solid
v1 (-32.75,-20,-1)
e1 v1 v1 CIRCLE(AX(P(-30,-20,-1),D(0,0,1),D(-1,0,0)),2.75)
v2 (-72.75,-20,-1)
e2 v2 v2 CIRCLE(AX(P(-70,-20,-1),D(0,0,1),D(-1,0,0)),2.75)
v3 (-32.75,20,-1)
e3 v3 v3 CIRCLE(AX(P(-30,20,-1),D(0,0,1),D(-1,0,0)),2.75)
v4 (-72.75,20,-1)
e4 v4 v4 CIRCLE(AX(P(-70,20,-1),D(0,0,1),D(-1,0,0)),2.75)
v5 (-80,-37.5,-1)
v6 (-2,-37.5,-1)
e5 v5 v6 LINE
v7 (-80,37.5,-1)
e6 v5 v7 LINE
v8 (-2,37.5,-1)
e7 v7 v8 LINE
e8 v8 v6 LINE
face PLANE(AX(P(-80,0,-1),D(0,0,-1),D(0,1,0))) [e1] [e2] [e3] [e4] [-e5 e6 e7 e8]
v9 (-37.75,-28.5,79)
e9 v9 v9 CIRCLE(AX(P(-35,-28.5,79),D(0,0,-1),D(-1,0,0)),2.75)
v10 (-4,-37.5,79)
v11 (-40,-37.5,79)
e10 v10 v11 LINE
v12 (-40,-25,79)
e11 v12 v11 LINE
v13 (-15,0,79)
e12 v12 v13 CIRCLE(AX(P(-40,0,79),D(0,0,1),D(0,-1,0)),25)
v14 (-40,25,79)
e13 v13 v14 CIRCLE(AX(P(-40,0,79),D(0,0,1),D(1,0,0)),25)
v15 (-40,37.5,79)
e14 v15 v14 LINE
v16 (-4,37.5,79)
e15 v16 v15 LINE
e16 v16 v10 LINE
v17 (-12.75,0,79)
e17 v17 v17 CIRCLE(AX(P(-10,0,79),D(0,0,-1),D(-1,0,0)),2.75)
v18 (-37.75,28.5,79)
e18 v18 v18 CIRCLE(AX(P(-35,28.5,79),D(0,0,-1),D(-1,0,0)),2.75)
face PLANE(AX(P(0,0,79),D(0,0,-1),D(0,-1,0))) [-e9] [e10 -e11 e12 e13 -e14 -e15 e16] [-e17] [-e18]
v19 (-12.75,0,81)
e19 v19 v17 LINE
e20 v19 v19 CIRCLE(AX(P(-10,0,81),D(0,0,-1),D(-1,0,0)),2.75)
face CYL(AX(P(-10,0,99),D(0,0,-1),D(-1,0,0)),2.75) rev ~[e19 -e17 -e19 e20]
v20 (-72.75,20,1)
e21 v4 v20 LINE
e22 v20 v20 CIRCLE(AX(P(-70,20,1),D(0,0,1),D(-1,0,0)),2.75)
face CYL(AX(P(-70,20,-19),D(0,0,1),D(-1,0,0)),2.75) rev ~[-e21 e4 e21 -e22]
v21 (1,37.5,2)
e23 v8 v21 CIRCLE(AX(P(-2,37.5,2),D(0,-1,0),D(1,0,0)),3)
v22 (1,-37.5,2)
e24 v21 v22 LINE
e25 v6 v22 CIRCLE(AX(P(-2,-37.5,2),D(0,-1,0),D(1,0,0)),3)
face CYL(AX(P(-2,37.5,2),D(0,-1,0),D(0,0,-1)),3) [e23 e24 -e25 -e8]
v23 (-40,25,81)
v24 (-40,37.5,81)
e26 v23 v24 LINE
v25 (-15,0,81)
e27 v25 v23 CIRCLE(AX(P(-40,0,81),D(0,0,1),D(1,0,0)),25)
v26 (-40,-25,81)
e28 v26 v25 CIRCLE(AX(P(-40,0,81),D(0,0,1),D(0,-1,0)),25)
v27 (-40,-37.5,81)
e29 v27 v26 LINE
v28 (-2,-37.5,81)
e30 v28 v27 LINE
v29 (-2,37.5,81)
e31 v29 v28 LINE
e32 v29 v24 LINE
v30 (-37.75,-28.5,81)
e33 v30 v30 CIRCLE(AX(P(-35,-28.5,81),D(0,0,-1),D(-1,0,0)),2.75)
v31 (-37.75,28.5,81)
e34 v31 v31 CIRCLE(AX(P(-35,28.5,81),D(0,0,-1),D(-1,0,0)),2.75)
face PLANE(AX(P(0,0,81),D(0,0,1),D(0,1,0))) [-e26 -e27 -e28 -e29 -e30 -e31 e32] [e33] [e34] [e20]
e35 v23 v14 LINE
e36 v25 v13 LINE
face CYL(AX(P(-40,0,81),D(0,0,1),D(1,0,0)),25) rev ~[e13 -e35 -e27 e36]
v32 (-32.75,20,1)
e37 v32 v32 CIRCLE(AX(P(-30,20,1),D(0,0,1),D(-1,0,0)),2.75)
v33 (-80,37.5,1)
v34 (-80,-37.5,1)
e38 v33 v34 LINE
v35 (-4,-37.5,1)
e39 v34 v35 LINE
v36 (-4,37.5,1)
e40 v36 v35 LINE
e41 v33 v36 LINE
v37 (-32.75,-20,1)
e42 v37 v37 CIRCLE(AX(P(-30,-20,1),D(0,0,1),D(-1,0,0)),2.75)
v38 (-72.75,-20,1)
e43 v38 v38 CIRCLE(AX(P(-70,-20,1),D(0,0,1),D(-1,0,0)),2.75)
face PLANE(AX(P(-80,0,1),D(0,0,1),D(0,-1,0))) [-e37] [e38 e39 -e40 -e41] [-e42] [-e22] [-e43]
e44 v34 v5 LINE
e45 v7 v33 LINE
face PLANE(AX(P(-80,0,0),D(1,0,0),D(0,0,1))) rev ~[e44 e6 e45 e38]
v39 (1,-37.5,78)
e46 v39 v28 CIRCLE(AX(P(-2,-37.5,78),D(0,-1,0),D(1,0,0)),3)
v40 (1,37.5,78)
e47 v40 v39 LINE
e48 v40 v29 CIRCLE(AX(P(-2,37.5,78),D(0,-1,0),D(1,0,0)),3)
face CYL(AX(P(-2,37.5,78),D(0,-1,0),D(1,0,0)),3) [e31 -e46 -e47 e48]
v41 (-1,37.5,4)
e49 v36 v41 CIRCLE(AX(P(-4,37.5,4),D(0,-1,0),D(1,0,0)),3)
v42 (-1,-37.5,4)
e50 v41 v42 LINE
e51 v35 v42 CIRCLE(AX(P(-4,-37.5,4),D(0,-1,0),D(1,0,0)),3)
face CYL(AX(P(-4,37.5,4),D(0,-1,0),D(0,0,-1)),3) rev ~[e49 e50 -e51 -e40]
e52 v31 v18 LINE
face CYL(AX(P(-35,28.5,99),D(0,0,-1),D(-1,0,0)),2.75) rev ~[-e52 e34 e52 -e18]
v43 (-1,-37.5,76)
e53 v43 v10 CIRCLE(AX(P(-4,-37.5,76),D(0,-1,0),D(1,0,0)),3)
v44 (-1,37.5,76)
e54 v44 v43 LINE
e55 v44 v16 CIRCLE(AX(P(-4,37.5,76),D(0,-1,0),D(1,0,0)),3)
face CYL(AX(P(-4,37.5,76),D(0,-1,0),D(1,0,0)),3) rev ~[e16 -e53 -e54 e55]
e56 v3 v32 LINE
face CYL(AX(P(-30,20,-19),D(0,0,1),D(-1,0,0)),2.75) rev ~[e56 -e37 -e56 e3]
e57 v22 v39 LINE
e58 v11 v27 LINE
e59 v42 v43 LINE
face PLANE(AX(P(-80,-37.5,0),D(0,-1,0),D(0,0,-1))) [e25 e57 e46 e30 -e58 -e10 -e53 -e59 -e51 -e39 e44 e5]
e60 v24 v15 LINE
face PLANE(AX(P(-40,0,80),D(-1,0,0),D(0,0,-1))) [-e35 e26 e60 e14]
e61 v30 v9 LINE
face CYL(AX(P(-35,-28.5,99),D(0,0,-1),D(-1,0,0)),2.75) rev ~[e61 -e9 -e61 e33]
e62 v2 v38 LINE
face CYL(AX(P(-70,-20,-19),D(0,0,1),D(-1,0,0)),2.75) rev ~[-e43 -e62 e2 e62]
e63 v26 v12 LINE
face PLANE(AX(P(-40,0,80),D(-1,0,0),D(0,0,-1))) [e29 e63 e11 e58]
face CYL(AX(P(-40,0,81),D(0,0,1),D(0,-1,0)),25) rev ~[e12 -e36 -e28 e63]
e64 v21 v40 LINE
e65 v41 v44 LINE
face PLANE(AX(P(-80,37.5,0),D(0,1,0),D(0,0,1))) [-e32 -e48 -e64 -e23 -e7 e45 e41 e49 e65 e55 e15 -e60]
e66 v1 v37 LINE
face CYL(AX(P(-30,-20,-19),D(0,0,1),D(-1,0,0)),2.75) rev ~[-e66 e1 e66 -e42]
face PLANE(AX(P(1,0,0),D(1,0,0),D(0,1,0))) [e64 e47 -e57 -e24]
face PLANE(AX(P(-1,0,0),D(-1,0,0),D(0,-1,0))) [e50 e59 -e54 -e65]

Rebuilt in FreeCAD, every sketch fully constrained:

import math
import FreeCAD as App
import Part
import Sketcher
from FreeCAD import Vector
Q = App.Units.Quantity


def edges_at(feature, points):
    """Names of the edges that pass closest to the given points."""
    edges = feature.Shape.Edges
    near = lambda p: min(range(len(edges)), key=lambda i: edges[i].distToShape(Part.Vertex(*p))[0])
    return sorted({f"Edge{near(p) + 1}" for p in points})

doc = App.newDocument("Part")
body = doc.addObject("PartDesign::Body", "Body")

sketch1 = body.newObject("Sketcher::SketchObject", "Sketch")
sketch1.AttachmentSupport = (doc.getObject("YZ_Plane"), [""])
sketch1.MapMode = "FlatFace"
sketch1.AttachmentOffset = App.Placement(Vector(0, 0, -80), App.Rotation())
sketch1.addGeometry([
    Part.LineSegment(Vector(-37.5, 1, 0), Vector(-37.5, -1, 0)),
    Part.LineSegment(Vector(-37.5, -1, 0), Vector(37.5, -1, 0)),
    Part.LineSegment(Vector(37.5, -1, 0), Vector(37.5, 1, 0)),
    Part.LineSegment(Vector(37.5, 1, 0), Vector(-37.5, 1, 0)),
], False)
sketch1.addConstraint([
    Sketcher.Constraint("Coincident", 0, 2, 1, 1),
    Sketcher.Constraint("Coincident", 1, 2, 2, 1),
    Sketcher.Constraint("Coincident", 2, 2, 3, 1),
    Sketcher.Constraint("Coincident", 3, 2, 0, 1),
    Sketcher.Constraint("Vertical", 0),
    Sketcher.Constraint("Horizontal", 1),
    Sketcher.Constraint("Vertical", 2),
    Sketcher.Constraint("Horizontal", 3),
    Sketcher.Constraint("Symmetric", 0, 2, 2, 2, -1, 1),
    Sketcher.Constraint("DistanceX", 1, 1, 1, 2, Q("75 mm")),
    Sketcher.Constraint("DistanceY", 0, 2, 0, 1, Q("2 mm")),
])

sketch2 = body.newObject("Sketcher::SketchObject", "Sketch001")
sketch2.AttachmentSupport = (doc.getObject("XZ_Plane"), [""])
sketch2.MapMode = "FlatFace"
sketch2.addGeometry([
    Part.LineSegment(Vector(-80, 0, 0), Vector(0, 0, 0)),
    Part.LineSegment(Vector(0, 0, 0), Vector(0, 80, 0)),
    Part.LineSegment(Vector(0, 80, 0), Vector(-40, 80, 0)),
], False)
sketch2.addConstraint([
    Sketcher.Constraint("Coincident", 0, 2, 1, 1),
    Sketcher.Constraint("Coincident", 1, 2, 2, 1),
    Sketcher.Constraint("Horizontal", 0),
    Sketcher.Constraint("Vertical", 1),
    Sketcher.Constraint("Horizontal", 2),
    Sketcher.Constraint("Coincident", 0, 2, -1, 1),
    Sketcher.Constraint("Equal", 0, 1),
    Sketcher.Constraint("DistanceX", 0, 1, 0, 2, Q("80 mm")),
    Sketcher.Constraint("DistanceX", 2, 2, 2, 1, Q("40 mm")),
])
doc.recompute()

additivepipe = body.newObject("PartDesign::AdditivePipe", "AdditivePipe")
additivepipe.Profile = sketch1
additivepipe.Spine = (sketch2, ["Edge1", "Edge2", "Edge3"])
additivepipe.Transition = "Right corner"
doc.recompute()

fillet = body.newObject("PartDesign::Fillet", "Fillet")
fillet.Base = (additivepipe, edges_at(additivepipe, [
    (-1, 0, 1),
    (-1, 0, 79),
    (1, 0, -1),
    (1, 0, 81),
]))
fillet.Radius = 3

sketch3 = body.newObject("Sketcher::SketchObject", "Sketch002")
sketch3.AttachmentSupport = (doc.getObject("XY_Plane"), [""])
sketch3.MapMode = "FlatFace"
sketch3.AttachmentOffset = App.Placement(Vector(0, 0, 81), App.Rotation())
sketch3.addGeometry([
    Part.ArcOfCircle(Part.Circle(Vector(-40, 0, 0), Vector(0, 0, 1), 25), math.radians(-90), math.radians(0)),
    Part.ArcOfCircle(Part.Circle(Vector(-40, 0, 0), Vector(0, 0, 1), 25), math.radians(0), math.radians(90)),
    Part.LineSegment(Vector(-40, 25, 0), Vector(-40, -25, 0)),
], False)
sketch3.addConstraint([
    Sketcher.Constraint("Tangent", 0, 2, 1, 1),
    Sketcher.Constraint("Coincident", 1, 2, 2, 1),
    Sketcher.Constraint("Coincident", 2, 2, 0, 1),
    Sketcher.Constraint("Vertical", 2),
    Sketcher.Constraint("Equal", 0, 1),
    Sketcher.Constraint("PointOnObject", 0, 3, -1),
    Sketcher.Constraint("PointOnObject", 0, 2, -1),
    Sketcher.Constraint("Vertical", 0, 3, 1, 2),
    Sketcher.Constraint("Radius", 0, Q("25 mm")),
    Sketcher.Constraint("DistanceX", 0, 3, -1, 1, Q("40 mm")),
])
pocket1 = body.newObject("PartDesign::Pocket", "Pocket")
pocket1.Profile = sketch3
pocket1.Length = 2

sketch4 = body.newObject("Sketcher::SketchObject", "Sketch003")
sketch4.AttachmentSupport = (doc.getObject("XY_Plane"), [""])
sketch4.MapMode = "FlatFace"
sketch4.AttachmentOffset = App.Placement(Vector(0, 0, 81), App.Rotation())
sketch4.addGeometry([
    Part.Circle(Vector(-35, 28.5, 0), Vector(0, 0, 1), 2.75),
    Part.Circle(Vector(-10, 0, 0), Vector(0, 0, 1), 2.75),
    Part.Circle(Vector(-35, -28.5, 0), Vector(0, 0, 1), 2.75),
], False)
sketch4.addConstraint([
    Sketcher.Constraint("Equal", 0, 1),
    Sketcher.Constraint("Equal", 1, 2),
    Sketcher.Constraint("Symmetric", 0, 3, 2, 3, -1),
    Sketcher.Constraint("PointOnObject", 1, 3, -1),
    Sketcher.Constraint("Diameter", 0, Q("5.5 mm")),
    Sketcher.Constraint("DistanceX", 0, 3, -1, 1, Q("35 mm")),
    Sketcher.Constraint("DistanceX", 1, 3, -1, 1, Q("10 mm")),
    Sketcher.Constraint("DistanceY", 2, 3, 0, 3, Q("57 mm")),
])
doc.recompute()
hole = body.newObject("PartDesign::Hole", "Hole")
hole.Profile = sketch4
hole.ThreadType = "None"
hole.Diameter = 5.5
hole.DepthType = "Dimension"
hole.Depth = 18
hole.DrillPoint = "Angled"
hole.DrillPointAngle = 118

sketch5 = body.newObject("Sketcher::SketchObject", "Sketch004")
sketch5.AttachmentSupport = (doc.getObject("XY_Plane"), [""])
sketch5.MapMode = "FlatFace"
sketch5.AttachmentOffset = App.Placement(Vector(0, 0, -1), App.Rotation())
sketch5.addGeometry([
    Part.Circle(Vector(-30, -20, 0), Vector(0, 0, 1), 2.75),
    Part.Circle(Vector(-30, 20, 0), Vector(0, 0, 1), 2.75),
    Part.Circle(Vector(-70, 20, 0), Vector(0, 0, 1), 2.75),
    Part.Circle(Vector(-70, -20, 0), Vector(0, 0, 1), 2.75),
], False)
sketch5.addConstraint([
    Sketcher.Constraint("Equal", 0, 1),
    Sketcher.Constraint("Equal", 1, 2),
    Sketcher.Constraint("Equal", 2, 3),
    Sketcher.Constraint("Symmetric", 0, 3, 1, 3, -1),
    Sketcher.Constraint("Symmetric", 2, 3, 3, 3, -1),
    Sketcher.Constraint("Horizontal", 1, 3, 2, 3),
    Sketcher.Constraint("Diameter", 0, Q("5.5 mm")),
    Sketcher.Constraint("DistanceX", 0, 3, -1, 1, Q("30 mm")),
    Sketcher.Constraint("DistanceY", 0, 3, -1, 1, Q("20 mm")),
    Sketcher.Constraint("DistanceX", 2, 3, -1, 1, Q("70 mm")),
])
doc.recompute()
hole2 = body.newObject("PartDesign::Hole", "Hole001")
hole2.Profile = sketch5
hole2.ThreadType = "None"
hole2.Diameter = 5.5
hole2.DepthType = "Dimension"
hole2.Depth = 18
hole2.DrillPoint = "Angled"
hole2.DrillPointAngle = 118
hole2.Reversed = True

doc.recompute()
